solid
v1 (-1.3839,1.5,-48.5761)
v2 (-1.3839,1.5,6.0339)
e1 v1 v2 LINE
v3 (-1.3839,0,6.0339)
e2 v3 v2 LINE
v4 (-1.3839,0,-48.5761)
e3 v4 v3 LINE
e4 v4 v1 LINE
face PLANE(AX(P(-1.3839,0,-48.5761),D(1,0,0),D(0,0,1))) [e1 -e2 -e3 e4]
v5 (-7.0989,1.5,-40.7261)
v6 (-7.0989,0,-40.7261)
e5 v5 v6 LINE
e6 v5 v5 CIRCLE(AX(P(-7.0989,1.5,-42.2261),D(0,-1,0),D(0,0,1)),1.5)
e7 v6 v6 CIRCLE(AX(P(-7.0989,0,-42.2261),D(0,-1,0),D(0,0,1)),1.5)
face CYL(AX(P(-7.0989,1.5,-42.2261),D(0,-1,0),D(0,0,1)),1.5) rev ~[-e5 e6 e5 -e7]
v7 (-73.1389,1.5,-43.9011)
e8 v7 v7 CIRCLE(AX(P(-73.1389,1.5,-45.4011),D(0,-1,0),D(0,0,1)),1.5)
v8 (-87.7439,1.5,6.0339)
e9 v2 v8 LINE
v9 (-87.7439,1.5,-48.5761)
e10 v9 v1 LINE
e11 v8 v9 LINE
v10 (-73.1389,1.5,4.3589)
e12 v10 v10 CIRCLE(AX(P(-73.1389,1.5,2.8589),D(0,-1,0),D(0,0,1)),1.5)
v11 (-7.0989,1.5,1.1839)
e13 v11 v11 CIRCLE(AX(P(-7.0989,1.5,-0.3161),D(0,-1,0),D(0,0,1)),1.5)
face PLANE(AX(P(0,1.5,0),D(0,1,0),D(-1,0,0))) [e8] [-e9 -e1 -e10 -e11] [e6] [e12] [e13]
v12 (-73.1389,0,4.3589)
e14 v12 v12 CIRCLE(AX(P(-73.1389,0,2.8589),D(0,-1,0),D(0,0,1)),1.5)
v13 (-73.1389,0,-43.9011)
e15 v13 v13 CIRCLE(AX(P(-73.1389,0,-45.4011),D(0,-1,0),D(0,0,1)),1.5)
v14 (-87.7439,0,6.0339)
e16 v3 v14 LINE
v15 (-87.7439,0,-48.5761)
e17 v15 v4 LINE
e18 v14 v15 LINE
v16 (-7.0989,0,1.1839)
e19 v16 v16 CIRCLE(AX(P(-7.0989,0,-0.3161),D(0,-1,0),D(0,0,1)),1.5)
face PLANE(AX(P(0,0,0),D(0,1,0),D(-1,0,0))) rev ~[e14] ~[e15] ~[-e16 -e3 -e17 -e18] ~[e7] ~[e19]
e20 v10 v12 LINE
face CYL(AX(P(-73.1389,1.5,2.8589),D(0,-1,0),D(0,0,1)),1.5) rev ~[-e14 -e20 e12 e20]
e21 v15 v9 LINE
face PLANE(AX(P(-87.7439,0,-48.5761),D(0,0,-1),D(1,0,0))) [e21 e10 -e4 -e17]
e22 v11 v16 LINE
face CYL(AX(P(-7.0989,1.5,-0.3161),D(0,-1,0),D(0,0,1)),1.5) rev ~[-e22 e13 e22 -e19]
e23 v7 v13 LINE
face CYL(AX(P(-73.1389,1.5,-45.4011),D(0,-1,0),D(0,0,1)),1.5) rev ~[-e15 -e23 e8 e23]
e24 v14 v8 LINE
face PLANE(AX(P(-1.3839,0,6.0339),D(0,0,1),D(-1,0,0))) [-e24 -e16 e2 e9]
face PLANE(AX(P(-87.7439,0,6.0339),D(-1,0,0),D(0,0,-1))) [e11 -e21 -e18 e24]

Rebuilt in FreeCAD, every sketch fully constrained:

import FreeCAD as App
import Part
import Sketcher
Q = App.Units.Quantity


def add_polygon(sketch, points):
    """Adds a closed chain of lines whose ends are joined by coincident constraints."""
    first, n = sketch.GeometryCount, len(points)
    for a, b in zip(points, points[1:] + points[:1]):
        sketch.addGeometry(Part.LineSegment(App.Vector(*a, 0), App.Vector(*b, 0)), False)
    for i in range(n):
        sketch.addConstraint(Sketcher.Constraint("Coincident", first + i, 2, first + (i + 1) % n, 1))

doc = App.newDocument("Part")
params = doc.addObject("Spreadsheet::Sheet", "Params")
for row, (alias, value) in enumerate([
    ("sketch1_width", "3.4 in"),
    ("sketch1_height", "2.15 in"),
    ("pad1_length", "1.5 mm"),
    ("hole_diameter", "0.1181102 in"),
], start=1):
    params.set(f"A{row}", alias)
    params.set(f"B{row}", "=" + value)
    params.setAlias(f"B{row}", alias)

body = doc.addObject("PartDesign::Body", "Body")

# Sketch on XZ plane
sketch1 = doc.addObject("Sketcher::SketchObject", "Sketch")
body.addObject(sketch1)
sketch1.AttachmentSupport = (doc.XZ_Plane, [""])
sketch1.MapMode = "FlatFace"
add_polygon(sketch1, [(-87.7439, 6.0339), (-1.3839, 6.0339), (-1.3839, -48.5761), (-87.7439, -48.5761)])  # lines 0-3
sketch1.addConstraint([
    Sketcher.Constraint("Horizontal", 0),
    Sketcher.Constraint("Vertical", 1),
    Sketcher.Constraint("Horizontal", 2),
    Sketcher.Constraint("Vertical", 3),
    Sketcher.Constraint("DistanceX", 0, 1, 0, 2, Q("3.4 in")),
    Sketcher.Constraint("DistanceY", 1, 2, 1, 1, Q("2.15 in")),
    Sketcher.Constraint("DistanceX", 0, 2, -1, 1, Q("0.0544882 in")),
    Sketcher.Constraint("DistanceY", -1, 1, 0, 2, Q("6.034 mm")),
])
sketch1.setExpression("Constraints[8]", "Params.sketch1_width")
sketch1.setExpression("Constraints[9]", "Params.sketch1_height")
pad1 = doc.addObject("PartDesign::Pad", "Pad")
body.addObject(pad1)
pad1.Profile = sketch1
pad1.setExpression("Length", "Params.pad1_length")
pad1.Reversed = True

# Sketch on XZ plane
sketch2 = doc.addObject("Sketcher::SketchObject", "Sketch001")
body.addObject(sketch2)
sketch2.AttachmentSupport = (doc.XZ_Plane, [""])
sketch2.MapMode = "FlatFace"
sketch2.AttachmentOffset = App.Placement(App.Vector(0, 0, -1.5), App.Rotation())
sketch2.addGeometry([
    Part.Circle(App.Vector(-7.0989, -42.2261, 0), App.Vector(0, 0, 1), 1.5),
    Part.Circle(App.Vector(-7.0989, -0.3161, 0), App.Vector(0, 0, 1), 1.5),
    Part.Circle(App.Vector(-73.1389, 2.8589, 0), App.Vector(0, 0, 1), 1.5),
    Part.Circle(App.Vector(-73.1389, -45.4011, 0), App.Vector(0, 0, 1), 1.5),
], False)
sketch2.addConstraint([
    Sketcher.Constraint("Equal", 0, 1),
    Sketcher.Constraint("Equal", 1, 2),
    Sketcher.Constraint("Equal", 2, 3),
    Sketcher.Constraint("Vertical", 0, 3, 1, 3),
    Sketcher.Constraint("Vertical", 2, 3, 3, 3),
    Sketcher.Constraint("Diameter", 0, Q("0.1181 in")),
    Sketcher.Constraint("DistanceX", 2, 3, 1, 3, Q("2.6 in")),
    Sketcher.Constraint("DistanceY", 3, 3, 2, 3, Q("1.9 in")),
    Sketcher.Constraint("DistanceY", 0, 3, 1, 3, Q("1.65 in")),
    Sketcher.Constraint("DistanceY", 1, 3, 2, 3, Q("0.125 in")),
    Sketcher.Constraint("DistanceX", 0, 3, -1, 1, Q("0.2794882 in")),
    Sketcher.Constraint("DistanceY", 0, 3, -1, 1, Q("42.226 mm")),
])
doc.recompute()
hole = doc.addObject("PartDesign::Hole", "Hole")
body.addObject(hole)
hole.Profile = sketch2
hole.ThreadType = "None"
hole.setExpression("Diameter", "Params.hole_diameter")
hole.DepthType = "ThroughAll"
hole.Reversed = True

doc.recompute()
